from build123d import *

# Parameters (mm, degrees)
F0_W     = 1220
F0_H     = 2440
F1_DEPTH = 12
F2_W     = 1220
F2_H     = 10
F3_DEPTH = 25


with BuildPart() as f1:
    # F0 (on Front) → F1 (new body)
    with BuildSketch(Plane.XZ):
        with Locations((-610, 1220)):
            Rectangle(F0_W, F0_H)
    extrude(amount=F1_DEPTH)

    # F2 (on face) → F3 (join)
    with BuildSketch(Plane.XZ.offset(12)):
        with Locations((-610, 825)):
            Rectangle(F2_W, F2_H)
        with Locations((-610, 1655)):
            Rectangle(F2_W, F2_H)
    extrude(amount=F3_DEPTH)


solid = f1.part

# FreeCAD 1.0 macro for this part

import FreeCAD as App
import Part
import Sketcher
Q = App.Units.Quantity

doc = App.newDocument("Part")
body = doc.addObject("PartDesign::Body", "Body")

# Sketch on XZ plane
sketch1 = body.newObject("Sketcher::SketchObject", "Sketch")
sketch1.AttachmentSupport = (doc.getObject("XZ_Plane"), [""])
sketch1.MapMode = "FlatFace"
sketch1.addGeometry(Part.LineSegment(App.Vector(-1220, 2440, 0), App.Vector(-1220, 0, 0)), False)
sketch1.addGeometry(Part.LineSegment(App.Vector(-1220, 0, 0), App.Vector(0, 0, 0)), False)
sketch1.addGeometry(Part.LineSegment(App.Vector(0, 0, 0), App.Vector(0, 2440, 0)), False)
sketch1.addGeometry(Part.LineSegment(App.Vector(0, 2440, 0), App.Vector(-1220, 2440, 0)), False)
sketch1.addConstraint(Sketcher.Constraint("Coincident", 0, 2, 1, 1))
sketch1.addConstraint(Sketcher.Constraint("Coincident", 1, 2, 2, 1))
sketch1.addConstraint(Sketcher.Constraint("Coincident", 2, 2, 3, 1))
sketch1.addConstraint(Sketcher.Constraint("Coincident", 3, 2, 0, 1))
sketch1.addConstraint(Sketcher.Constraint("Vertical", 0))
sketch1.addConstraint(Sketcher.Constraint("Horizontal", 1))
sketch1.addConstraint(Sketcher.Constraint("Vertical", 2))
sketch1.addConstraint(Sketcher.Constraint("Horizontal", 3))
sketch1.addConstraint(Sketcher.Constraint("Coincident", 1, 2, -1, 1))
sketch1.addConstraint(Sketcher.Constraint("DistanceX", 1, 1, 1, 2, Q("1220 mm")))
sketch1.addConstraint(Sketcher.Constraint("DistanceY", 0, 2, 0, 1, Q("2440 mm")))
pad1 = body.newObject("PartDesign::Pad", "Pad")
pad1.Profile = sketch1
pad1.Length = 12

# Sketch on XZ plane
sketch2 = body.newObject("Sketcher::SketchObject", "Sketch001")
sketch2.AttachmentSupport = (doc.getObject("XZ_Plane"), [""])
sketch2.MapMode = "FlatFace"
sketch2.AttachmentOffset = App.Placement(App.Vector(0, 0, 12), App.Rotation())
sketch2.addGeometry(Part.LineSegment(App.Vector(-1220, 830, 0), App.Vector(-1220, 820, 0)), False)
sketch2.addGeometry(Part.LineSegment(App.Vector(-1220, 820, 0), App.Vector(0, 820, 0)), False)
sketch2.addGeometry(Part.LineSegment(App.Vector(0, 820, 0), App.Vector(0, 830, 0)), False)
sketch2.addGeometry(Part.LineSegment(App.Vector(0, 830, 0), App.Vector(-1220, 830, 0)), False)
sketch2.addGeometry(Part.LineSegment(App.Vector(-1220, 1660, 0), App.Vector(-1220, 1650, 0)), False)
sketch2.addGeometry(Part.LineSegment(App.Vector(-1220, 1650, 0), App.Vector(0, 1650, 0)), False)
sketch2.addGeometry(Part.LineSegment(App.Vector(0, 1650, 0), App.Vector(0, 1660, 0)), False)
sketch2.addGeometry(Part.LineSegment(App.Vector(0, 1660, 0), App.Vector(-1220, 1660, 0)), False)
sketch2.addConstraint(Sketcher.Constraint("Coincident", 0, 2, 1, 1))
sketch2.addConstraint(Sketcher.Constraint("Coincident", 1, 2, 2, 1))
sketch2.addConstraint(Sketcher.Constraint("Coincident", 2, 2, 3, 1))
sketch2.addConstraint(Sketcher.Constraint("Coincident", 3, 2, 0, 1))
sketch2.addConstraint(Sketcher.Constraint("Coincident", 4, 2, 5, 1))
sketch2.addConstraint(Sketcher.Constraint("Coincident", 5, 2, 6, 1))
sketch2.addConstraint(Sketcher.Constraint("Coincident", 6, 2, 7, 1))
sketch2.addConstraint(Sketcher.Constraint("Coincident", 7, 2, 4, 1))
sketch2.addConstraint(Sketcher.Constraint("Vertical", 0))
sketch2.addConstraint(Sketcher.Constraint("Horizontal", 1))
sketch2.addConstraint(Sketcher.Constraint("Vertical", 2))
sketch2.addConstraint(Sketcher.Constraint("Horizontal", 3))
sketch2.addConstraint(Sketcher.Constraint("Vertical", 4))
sketch2.addConstraint(Sketcher.Constraint("Horizontal", 5))
sketch2.addConstraint(Sketcher.Constraint("Vertical", 6))
sketch2.addConstraint(Sketcher.Constraint("Horizontal", 7))
sketch2.addConstraint(Sketcher.Constraint("PointOnObject", 1, 2, -2))
sketch2.addConstraint(Sketcher.Constraint("PointOnObject", 5, 2, -2))
sketch2.addConstraint(Sketcher.Constraint("Vertical", 3, 2, 4, 2))
sketch2.addConstraint(Sketcher.Constraint("Equal", 2, 4))
sketch2.addConstraint(Sketcher.Constraint("DistanceX", 1, 1, 1, 2, Q("1220 mm")))
sketch2.addConstraint(Sketcher.Constraint("DistanceY", 0, 2, 0, 1, Q("10 mm")))
sketch2.addConstraint(Sketcher.Constraint("DistanceY", -1, 1, 0, 2, Q("820 mm")))
sketch2.addConstraint(Sketcher.Constraint("DistanceY", -1, 1, 4, 2, Q("1650 mm")))
pad2 = body.newObject("PartDesign::Pad", "Pad001")
pad2.Profile = sketch2
pad2.Length = 25

doc.recompute()
